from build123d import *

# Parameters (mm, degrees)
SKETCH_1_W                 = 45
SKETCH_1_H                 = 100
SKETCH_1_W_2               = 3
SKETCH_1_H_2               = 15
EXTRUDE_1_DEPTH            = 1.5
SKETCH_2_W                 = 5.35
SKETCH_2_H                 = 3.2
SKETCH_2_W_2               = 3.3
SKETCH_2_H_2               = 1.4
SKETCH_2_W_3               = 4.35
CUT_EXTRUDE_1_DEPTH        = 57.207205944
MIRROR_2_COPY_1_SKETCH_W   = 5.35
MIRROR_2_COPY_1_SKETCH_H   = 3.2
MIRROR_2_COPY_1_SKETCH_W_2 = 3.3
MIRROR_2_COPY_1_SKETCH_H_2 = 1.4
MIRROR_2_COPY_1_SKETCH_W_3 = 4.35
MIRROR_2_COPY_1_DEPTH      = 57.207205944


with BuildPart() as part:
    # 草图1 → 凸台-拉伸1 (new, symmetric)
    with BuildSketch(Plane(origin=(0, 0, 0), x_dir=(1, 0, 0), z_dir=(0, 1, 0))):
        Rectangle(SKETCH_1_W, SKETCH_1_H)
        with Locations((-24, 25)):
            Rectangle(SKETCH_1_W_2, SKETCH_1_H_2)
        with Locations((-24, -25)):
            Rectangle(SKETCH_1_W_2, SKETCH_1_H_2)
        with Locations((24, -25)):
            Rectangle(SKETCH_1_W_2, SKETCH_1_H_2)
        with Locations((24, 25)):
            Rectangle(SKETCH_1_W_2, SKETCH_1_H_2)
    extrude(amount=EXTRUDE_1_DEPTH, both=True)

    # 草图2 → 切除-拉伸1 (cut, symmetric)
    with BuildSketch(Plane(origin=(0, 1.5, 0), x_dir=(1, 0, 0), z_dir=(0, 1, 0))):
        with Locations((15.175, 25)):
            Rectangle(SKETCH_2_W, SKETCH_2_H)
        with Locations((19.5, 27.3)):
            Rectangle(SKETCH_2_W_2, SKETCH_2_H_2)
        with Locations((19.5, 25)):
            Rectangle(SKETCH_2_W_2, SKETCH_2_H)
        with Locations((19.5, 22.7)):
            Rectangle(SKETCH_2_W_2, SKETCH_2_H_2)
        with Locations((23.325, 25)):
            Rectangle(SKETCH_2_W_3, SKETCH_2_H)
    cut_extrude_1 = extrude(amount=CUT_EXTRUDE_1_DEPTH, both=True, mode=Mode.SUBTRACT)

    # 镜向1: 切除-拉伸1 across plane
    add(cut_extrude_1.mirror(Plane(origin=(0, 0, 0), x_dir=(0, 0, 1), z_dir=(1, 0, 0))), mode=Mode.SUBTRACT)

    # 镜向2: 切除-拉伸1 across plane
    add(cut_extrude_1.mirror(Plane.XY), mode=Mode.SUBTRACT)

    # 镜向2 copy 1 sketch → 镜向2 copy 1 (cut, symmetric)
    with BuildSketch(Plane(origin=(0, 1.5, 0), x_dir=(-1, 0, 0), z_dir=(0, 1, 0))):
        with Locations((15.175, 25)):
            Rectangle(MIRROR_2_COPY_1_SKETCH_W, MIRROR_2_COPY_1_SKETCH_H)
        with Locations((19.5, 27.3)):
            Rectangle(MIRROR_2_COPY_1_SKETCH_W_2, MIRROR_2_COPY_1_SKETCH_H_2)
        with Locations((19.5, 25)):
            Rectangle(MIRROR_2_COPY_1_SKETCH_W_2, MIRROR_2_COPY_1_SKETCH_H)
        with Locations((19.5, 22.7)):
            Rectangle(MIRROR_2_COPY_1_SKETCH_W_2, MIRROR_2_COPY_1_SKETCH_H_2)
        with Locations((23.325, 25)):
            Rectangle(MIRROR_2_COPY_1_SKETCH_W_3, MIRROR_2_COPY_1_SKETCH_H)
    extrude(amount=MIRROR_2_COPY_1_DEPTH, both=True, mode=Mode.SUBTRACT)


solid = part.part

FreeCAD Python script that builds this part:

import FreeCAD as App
import Part
import Sketcher

V = App.Vector


def add_polygon(sketch, points):
    """Adds a closed chain of lines whose ends are joined by coincident constraints."""
    first, n = sketch.GeometryCount, len(points)
    for a, b in zip(points, points[1:] + points[:1]):
        sketch.addGeometry(Part.LineSegment(App.Vector(*a, 0), App.Vector(*b, 0)), False)
    for i in range(n):
        sketch.addConstraint(Sketcher.Constraint("Coincident", first + i, 2, first + (i + 1) % n, 1))

doc = App.newDocument("Part")
body = doc.addObject("PartDesign::Body", "Body")

sketch1 = body.newObject("Sketcher::SketchObject", "Sketch")
sketch1.AttachmentSupport = (doc.getObject("XZ_Plane"), [""])
sketch1.MapMode = "FlatFace"
add_polygon(sketch1, [(-22.5, 32.5), (-22.5, 50), (22.5, 50), (22.5, 32.5), (25.5, 32.5), (25.5, 17.5), (22.5, 17.5), (22.5, -17.5), (25.5, -17.5), (25.5, -32.5), (22.5, -32.5), (22.5, -50), (-22.5, -50), (-22.5, -32.5), (-25.5, -32.5), (-25.5, -17.5), (-22.5, -17.5), (-22.5, 17.5), (-25.5, 17.5), (-25.5, 32.5)])
sketch1.addConstraint([
    Sketcher.Constraint("Vertical", 0),
    Sketcher.Constraint("Horizontal", 1),
    Sketcher.Constraint("Vertical", 2),
    Sketcher.Constraint("Horizontal", 3),
    Sketcher.Constraint("Vertical", 4),
    Sketcher.Constraint("Horizontal", 5),
    Sketcher.Constraint("Vertical", 6),
    Sketcher.Constraint("Horizontal", 7),
    Sketcher.Constraint("Vertical", 8),
    Sketcher.Constraint("Horizontal", 9),
    Sketcher.Constraint("Vertical", 10),
    Sketcher.Constraint("Horizontal", 11),
    Sketcher.Constraint("Vertical", 12),
    Sketcher.Constraint("Horizontal", 13),
    Sketcher.Constraint("Vertical", 14),
    Sketcher.Constraint("Horizontal", 15),
    Sketcher.Constraint("Vertical", 16),
    Sketcher.Constraint("Horizontal", 17),
    Sketcher.Constraint("Vertical", 18),
    Sketcher.Constraint("Horizontal", 19),
    Sketcher.Constraint("Symmetric", 0, 2, 10, 2, -1, 1),
    Sketcher.Constraint("Symmetric", 2, 2, 12, 2, -1, 1),
    Sketcher.Constraint("Symmetric", 4, 2, 14, 2, -1, 1),
    Sketcher.Constraint("Symmetric", 6, 2, 16, 2, -1, 1),
    Sketcher.Constraint("Symmetric", 8, 2, 18, 2, -1, 1),
    Sketcher.Constraint("Symmetric", 9, 2, 12, 2, -2),
    Sketcher.Constraint("Symmetric", 7, 2, 14, 2, -2),
    Sketcher.Constraint("Vertical", 2, 2, 5, 2),
    Sketcher.Constraint("DistanceX", 1, 1, 1, 2, 45.0),
    Sketcher.Constraint("DistanceX", 3, 1, 3, 2, 3.0),
    Sketcher.Constraint("DistanceY", 4, 2, 4, 1, 15.0),
    Sketcher.Constraint("DistanceY", 6, 2, 6, 1, 35.0),
    Sketcher.Constraint("DistanceY", 0, 1, 0, 2, 17.5),
])
pad1 = body.newObject("PartDesign::Pad", "Pad")
pad1.Profile = sketch1
pad1.Length = 3
pad1.Midplane = True

sketch2 = body.newObject("Sketcher::SketchObject", "Sketch001")
sketch2.AttachmentSupport = (doc.getObject("XZ_Plane"), [""])
sketch2.MapMode = "FlatFace"
sketch2.AttachmentOffset = App.Placement(V(0, 0, -1.5), App.Rotation())
add_polygon(sketch2, [(12.5, -26.6), (12.5, -23.4), (17.9, -23.4), (17.9, -22), (21.1, -22), (21.1, -23.4), (25.5, -23.4), (25.5, -26.6), (21.1, -26.6), (21.1, -28), (17.9, -28), (17.9, -26.6)])
sketch2.addConstraint([
    Sketcher.Constraint("Vertical", 0),
    Sketcher.Constraint("Horizontal", 1),
    Sketcher.Constraint("Vertical", 2),
    Sketcher.Constraint("Horizontal", 3),
    Sketcher.Constraint("Vertical", 4),
    Sketcher.Constraint("Horizontal", 5),
    Sketcher.Constraint("Vertical", 6),
    Sketcher.Constraint("Horizontal", 7),
    Sketcher.Constraint("Vertical", 8),
    Sketcher.Constraint("Horizontal", 9),
    Sketcher.Constraint("Vertical", 10),
    Sketcher.Constraint("Horizontal", 11),
    Sketcher.Constraint("Horizontal", 1, 2, 4, 2),
    Sketcher.Constraint("Horizontal", 7, 2, 10, 2),
    Sketcher.Constraint("Vertical", 4, 2, 7, 2),
    Sketcher.Constraint("Vertical", 2, 2, 9, 2),
    Sketcher.Constraint("Equal", 4, 8),
    Sketcher.Constraint("DistanceX", 3, 1, 3, 2, 3.3),
    Sketcher.Constraint("DistanceY", 0, 1, 0, 2, 3.2),
    Sketcher.Constraint("DistanceY", 2, 1, 2, 2, 1.4),
    Sketcher.Constraint("DistanceY", 2, 2, -1, 1, 22.0),
    Sketcher.Constraint("DistanceX", 0, 2, 5, 2, 13.0),
    Sketcher.Constraint("DistanceX", 1, 1, 1, 2, 5.35),
    Sketcher.Constraint("DistanceX", -1, 1, 0, 2, 12.5),
])
pocket1 = body.newObject("PartDesign::Pocket", "Pocket")
pocket1.Profile = sketch2
pocket1.Length = 114.414412
pocket1.Midplane = True
doc.recompute()

mirrored = body.newObject("PartDesign::Mirrored", "Mirrored")
mirrored.Originals = [pocket1]
mirrored.MirrorPlane = (doc.getObject("YZ_Plane"), [""])
body.Tip = mirrored
doc.recompute()

mirrored2 = body.newObject("PartDesign::Mirrored", "Mirrored001")
mirrored2.Originals = [pocket1]
mirrored2.MirrorPlane = (doc.getObject("XY_Plane"), [""])
body.Tip = mirrored2

sketch3 = body.newObject("Sketcher::SketchObject", "Sketch002")
sketch3.AttachmentSupport = (doc.getObject("XZ_Plane"), [""])
sketch3.MapMode = "FlatFace"
sketch3.AttachmentOffset = App.Placement(V(0, 0, -1.5), App.Rotation())
add_polygon(sketch3, [(-12.5, 26.6), (-12.5, 23.4), (-17.9, 23.4), (-17.9, 22), (-21.1, 22), (-21.1, 23.4), (-25.5, 23.4), (-25.5, 26.6), (-21.1, 26.6), (-21.1, 28), (-17.9, 28), (-17.9, 26.6)])
sketch3.addConstraint([
    Sketcher.Constraint("Vertical", 0),
    Sketcher.Constraint("Horizontal", 1),
    Sketcher.Constraint("Vertical", 2),
    Sketcher.Constraint("Horizontal", 3),
    Sketcher.Constraint("Vertical", 4),
    Sketcher.Constraint("Horizontal", 5),
    Sketcher.Constraint("Vertical", 6),
    Sketcher.Constraint("Horizontal", 7),
    Sketcher.Constraint("Vertical", 8),
    Sketcher.Constraint("Horizontal", 9),
    Sketcher.Constraint("Vertical", 10),
    Sketcher.Constraint("Horizontal", 11),
    Sketcher.Constraint("Horizontal", 1, 2, 4, 2),
    Sketcher.Constraint("Horizontal", 7, 2, 10, 2),
    Sketcher.Constraint("Vertical", 4, 2, 7, 2),
    Sketcher.Constraint("Vertical", 2, 2, 9, 2),
    Sketcher.Constraint("Equal", 4, 8),
    Sketcher.Constraint("DistanceX", 3, 2, 3, 1, 3.3),
    Sketcher.Constraint("DistanceY", 0, 2, 0, 1, 3.2),
    Sketcher.Constraint("DistanceY", 2, 2, 2, 1, 1.4),
    Sketcher.Constraint("DistanceY", -1, 1, 2, 2, 22.0),
    Sketcher.Constraint("DistanceX", 5, 2, 0, 2, 13.0),
    Sketcher.Constraint("DistanceX", 1, 2, 1, 1, 5.35),
    Sketcher.Constraint("DistanceX", 0, 2, -1, 1, 12.5),
])
pocket2 = body.newObject("PartDesign::Pocket", "Pocket001")
pocket2.Profile = sketch3
pocket2.Length = 114.414412
pocket2.Midplane = True

doc.recompute()
